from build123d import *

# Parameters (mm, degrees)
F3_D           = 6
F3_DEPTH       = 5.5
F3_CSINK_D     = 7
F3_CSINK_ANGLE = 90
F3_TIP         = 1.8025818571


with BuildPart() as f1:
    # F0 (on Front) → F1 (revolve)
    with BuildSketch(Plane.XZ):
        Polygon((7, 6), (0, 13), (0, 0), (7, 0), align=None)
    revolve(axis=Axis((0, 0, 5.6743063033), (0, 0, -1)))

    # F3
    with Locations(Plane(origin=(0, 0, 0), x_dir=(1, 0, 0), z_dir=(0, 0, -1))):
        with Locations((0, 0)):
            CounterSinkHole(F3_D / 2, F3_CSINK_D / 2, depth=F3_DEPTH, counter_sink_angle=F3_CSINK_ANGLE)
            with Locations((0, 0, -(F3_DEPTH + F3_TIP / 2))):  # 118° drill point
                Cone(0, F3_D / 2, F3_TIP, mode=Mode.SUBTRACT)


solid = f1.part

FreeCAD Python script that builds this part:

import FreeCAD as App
import Part
import Sketcher
from FreeCAD import Vector


def add_polygon(sketch, points):
    """Adds a closed chain of lines whose ends are joined by coincident constraints."""
    first, n = sketch.GeometryCount, len(points)
    for a, b in zip(points, points[1:] + points[:1]):
        sketch.addGeometry(Part.LineSegment(App.Vector(*a, 0), App.Vector(*b, 0)), False)
    for i in range(n):
        sketch.addConstraint(Sketcher.Constraint("Coincident", first + i, 2, first + (i + 1) % n, 1))

doc = App.newDocument("Part")
body = doc.addObject("PartDesign::Body", "Body")

# Sketch on XZ plane
sketch1 = body.newObject("Sketcher::SketchObject", "Sketch")
sketch1.AttachmentSupport = (doc.getObject("XZ_Plane"), [""])
sketch1.MapMode = "FlatFace"
add_polygon(sketch1, [(7, 6), (0, 13), (0, 0), (7, 0)])  # lines 0-3
sketch1.addConstraint([
    Sketcher.Constraint("Vertical", 1),
    Sketcher.Constraint("Horizontal", 2),
    Sketcher.Constraint("Vertical", 3),
    Sketcher.Constraint("Coincident", 1, 2, -1, 1),
    Sketcher.Constraint("DistanceX", 2, 1, 2, 2, 7.0),
    Sketcher.Constraint("DistanceY", 1, 2, 1, 1, 13.0),
    Sketcher.Constraint("DistanceY", 3, 1, 3, 2, 6.0),
])
revolution = body.newObject("PartDesign::Revolution", "Revolution")
revolution.Profile = sketch1
revolution.ReferenceAxis = (sketch1, ["V_Axis"])
revolution.Angle = 360

# Sketch on XY plane
sketch2 = body.newObject("Sketcher::SketchObject", "Sketch001")
sketch2.AttachmentSupport = (doc.getObject("XY_Plane"), [""])
sketch2.MapMode = "FlatFace"
sketch2.addGeometry(Part.Circle(Vector(0, 0, 0), Vector(0, 0, 1), 3), False)
sketch2.addConstraint([
    Sketcher.Constraint("Coincident", 0, 3, -1, 1),
    Sketcher.Constraint("Diameter", 0, 6.0),
])
doc.recompute()
hole = body.newObject("PartDesign::Hole", "Hole")
hole.Profile = sketch2
hole.ThreadType = "None"
hole.Diameter = 6
hole.DepthType = "Dimension"
hole.Depth = 5.5
hole.DrillPoint = "Angled"
hole.DrillPointAngle = 118
hole.HoleCutType = "Countersink"
hole.HoleCutDiameter = 7
hole.HoleCutCountersinkAngle = 90
hole.Reversed = True

doc.recompute()
